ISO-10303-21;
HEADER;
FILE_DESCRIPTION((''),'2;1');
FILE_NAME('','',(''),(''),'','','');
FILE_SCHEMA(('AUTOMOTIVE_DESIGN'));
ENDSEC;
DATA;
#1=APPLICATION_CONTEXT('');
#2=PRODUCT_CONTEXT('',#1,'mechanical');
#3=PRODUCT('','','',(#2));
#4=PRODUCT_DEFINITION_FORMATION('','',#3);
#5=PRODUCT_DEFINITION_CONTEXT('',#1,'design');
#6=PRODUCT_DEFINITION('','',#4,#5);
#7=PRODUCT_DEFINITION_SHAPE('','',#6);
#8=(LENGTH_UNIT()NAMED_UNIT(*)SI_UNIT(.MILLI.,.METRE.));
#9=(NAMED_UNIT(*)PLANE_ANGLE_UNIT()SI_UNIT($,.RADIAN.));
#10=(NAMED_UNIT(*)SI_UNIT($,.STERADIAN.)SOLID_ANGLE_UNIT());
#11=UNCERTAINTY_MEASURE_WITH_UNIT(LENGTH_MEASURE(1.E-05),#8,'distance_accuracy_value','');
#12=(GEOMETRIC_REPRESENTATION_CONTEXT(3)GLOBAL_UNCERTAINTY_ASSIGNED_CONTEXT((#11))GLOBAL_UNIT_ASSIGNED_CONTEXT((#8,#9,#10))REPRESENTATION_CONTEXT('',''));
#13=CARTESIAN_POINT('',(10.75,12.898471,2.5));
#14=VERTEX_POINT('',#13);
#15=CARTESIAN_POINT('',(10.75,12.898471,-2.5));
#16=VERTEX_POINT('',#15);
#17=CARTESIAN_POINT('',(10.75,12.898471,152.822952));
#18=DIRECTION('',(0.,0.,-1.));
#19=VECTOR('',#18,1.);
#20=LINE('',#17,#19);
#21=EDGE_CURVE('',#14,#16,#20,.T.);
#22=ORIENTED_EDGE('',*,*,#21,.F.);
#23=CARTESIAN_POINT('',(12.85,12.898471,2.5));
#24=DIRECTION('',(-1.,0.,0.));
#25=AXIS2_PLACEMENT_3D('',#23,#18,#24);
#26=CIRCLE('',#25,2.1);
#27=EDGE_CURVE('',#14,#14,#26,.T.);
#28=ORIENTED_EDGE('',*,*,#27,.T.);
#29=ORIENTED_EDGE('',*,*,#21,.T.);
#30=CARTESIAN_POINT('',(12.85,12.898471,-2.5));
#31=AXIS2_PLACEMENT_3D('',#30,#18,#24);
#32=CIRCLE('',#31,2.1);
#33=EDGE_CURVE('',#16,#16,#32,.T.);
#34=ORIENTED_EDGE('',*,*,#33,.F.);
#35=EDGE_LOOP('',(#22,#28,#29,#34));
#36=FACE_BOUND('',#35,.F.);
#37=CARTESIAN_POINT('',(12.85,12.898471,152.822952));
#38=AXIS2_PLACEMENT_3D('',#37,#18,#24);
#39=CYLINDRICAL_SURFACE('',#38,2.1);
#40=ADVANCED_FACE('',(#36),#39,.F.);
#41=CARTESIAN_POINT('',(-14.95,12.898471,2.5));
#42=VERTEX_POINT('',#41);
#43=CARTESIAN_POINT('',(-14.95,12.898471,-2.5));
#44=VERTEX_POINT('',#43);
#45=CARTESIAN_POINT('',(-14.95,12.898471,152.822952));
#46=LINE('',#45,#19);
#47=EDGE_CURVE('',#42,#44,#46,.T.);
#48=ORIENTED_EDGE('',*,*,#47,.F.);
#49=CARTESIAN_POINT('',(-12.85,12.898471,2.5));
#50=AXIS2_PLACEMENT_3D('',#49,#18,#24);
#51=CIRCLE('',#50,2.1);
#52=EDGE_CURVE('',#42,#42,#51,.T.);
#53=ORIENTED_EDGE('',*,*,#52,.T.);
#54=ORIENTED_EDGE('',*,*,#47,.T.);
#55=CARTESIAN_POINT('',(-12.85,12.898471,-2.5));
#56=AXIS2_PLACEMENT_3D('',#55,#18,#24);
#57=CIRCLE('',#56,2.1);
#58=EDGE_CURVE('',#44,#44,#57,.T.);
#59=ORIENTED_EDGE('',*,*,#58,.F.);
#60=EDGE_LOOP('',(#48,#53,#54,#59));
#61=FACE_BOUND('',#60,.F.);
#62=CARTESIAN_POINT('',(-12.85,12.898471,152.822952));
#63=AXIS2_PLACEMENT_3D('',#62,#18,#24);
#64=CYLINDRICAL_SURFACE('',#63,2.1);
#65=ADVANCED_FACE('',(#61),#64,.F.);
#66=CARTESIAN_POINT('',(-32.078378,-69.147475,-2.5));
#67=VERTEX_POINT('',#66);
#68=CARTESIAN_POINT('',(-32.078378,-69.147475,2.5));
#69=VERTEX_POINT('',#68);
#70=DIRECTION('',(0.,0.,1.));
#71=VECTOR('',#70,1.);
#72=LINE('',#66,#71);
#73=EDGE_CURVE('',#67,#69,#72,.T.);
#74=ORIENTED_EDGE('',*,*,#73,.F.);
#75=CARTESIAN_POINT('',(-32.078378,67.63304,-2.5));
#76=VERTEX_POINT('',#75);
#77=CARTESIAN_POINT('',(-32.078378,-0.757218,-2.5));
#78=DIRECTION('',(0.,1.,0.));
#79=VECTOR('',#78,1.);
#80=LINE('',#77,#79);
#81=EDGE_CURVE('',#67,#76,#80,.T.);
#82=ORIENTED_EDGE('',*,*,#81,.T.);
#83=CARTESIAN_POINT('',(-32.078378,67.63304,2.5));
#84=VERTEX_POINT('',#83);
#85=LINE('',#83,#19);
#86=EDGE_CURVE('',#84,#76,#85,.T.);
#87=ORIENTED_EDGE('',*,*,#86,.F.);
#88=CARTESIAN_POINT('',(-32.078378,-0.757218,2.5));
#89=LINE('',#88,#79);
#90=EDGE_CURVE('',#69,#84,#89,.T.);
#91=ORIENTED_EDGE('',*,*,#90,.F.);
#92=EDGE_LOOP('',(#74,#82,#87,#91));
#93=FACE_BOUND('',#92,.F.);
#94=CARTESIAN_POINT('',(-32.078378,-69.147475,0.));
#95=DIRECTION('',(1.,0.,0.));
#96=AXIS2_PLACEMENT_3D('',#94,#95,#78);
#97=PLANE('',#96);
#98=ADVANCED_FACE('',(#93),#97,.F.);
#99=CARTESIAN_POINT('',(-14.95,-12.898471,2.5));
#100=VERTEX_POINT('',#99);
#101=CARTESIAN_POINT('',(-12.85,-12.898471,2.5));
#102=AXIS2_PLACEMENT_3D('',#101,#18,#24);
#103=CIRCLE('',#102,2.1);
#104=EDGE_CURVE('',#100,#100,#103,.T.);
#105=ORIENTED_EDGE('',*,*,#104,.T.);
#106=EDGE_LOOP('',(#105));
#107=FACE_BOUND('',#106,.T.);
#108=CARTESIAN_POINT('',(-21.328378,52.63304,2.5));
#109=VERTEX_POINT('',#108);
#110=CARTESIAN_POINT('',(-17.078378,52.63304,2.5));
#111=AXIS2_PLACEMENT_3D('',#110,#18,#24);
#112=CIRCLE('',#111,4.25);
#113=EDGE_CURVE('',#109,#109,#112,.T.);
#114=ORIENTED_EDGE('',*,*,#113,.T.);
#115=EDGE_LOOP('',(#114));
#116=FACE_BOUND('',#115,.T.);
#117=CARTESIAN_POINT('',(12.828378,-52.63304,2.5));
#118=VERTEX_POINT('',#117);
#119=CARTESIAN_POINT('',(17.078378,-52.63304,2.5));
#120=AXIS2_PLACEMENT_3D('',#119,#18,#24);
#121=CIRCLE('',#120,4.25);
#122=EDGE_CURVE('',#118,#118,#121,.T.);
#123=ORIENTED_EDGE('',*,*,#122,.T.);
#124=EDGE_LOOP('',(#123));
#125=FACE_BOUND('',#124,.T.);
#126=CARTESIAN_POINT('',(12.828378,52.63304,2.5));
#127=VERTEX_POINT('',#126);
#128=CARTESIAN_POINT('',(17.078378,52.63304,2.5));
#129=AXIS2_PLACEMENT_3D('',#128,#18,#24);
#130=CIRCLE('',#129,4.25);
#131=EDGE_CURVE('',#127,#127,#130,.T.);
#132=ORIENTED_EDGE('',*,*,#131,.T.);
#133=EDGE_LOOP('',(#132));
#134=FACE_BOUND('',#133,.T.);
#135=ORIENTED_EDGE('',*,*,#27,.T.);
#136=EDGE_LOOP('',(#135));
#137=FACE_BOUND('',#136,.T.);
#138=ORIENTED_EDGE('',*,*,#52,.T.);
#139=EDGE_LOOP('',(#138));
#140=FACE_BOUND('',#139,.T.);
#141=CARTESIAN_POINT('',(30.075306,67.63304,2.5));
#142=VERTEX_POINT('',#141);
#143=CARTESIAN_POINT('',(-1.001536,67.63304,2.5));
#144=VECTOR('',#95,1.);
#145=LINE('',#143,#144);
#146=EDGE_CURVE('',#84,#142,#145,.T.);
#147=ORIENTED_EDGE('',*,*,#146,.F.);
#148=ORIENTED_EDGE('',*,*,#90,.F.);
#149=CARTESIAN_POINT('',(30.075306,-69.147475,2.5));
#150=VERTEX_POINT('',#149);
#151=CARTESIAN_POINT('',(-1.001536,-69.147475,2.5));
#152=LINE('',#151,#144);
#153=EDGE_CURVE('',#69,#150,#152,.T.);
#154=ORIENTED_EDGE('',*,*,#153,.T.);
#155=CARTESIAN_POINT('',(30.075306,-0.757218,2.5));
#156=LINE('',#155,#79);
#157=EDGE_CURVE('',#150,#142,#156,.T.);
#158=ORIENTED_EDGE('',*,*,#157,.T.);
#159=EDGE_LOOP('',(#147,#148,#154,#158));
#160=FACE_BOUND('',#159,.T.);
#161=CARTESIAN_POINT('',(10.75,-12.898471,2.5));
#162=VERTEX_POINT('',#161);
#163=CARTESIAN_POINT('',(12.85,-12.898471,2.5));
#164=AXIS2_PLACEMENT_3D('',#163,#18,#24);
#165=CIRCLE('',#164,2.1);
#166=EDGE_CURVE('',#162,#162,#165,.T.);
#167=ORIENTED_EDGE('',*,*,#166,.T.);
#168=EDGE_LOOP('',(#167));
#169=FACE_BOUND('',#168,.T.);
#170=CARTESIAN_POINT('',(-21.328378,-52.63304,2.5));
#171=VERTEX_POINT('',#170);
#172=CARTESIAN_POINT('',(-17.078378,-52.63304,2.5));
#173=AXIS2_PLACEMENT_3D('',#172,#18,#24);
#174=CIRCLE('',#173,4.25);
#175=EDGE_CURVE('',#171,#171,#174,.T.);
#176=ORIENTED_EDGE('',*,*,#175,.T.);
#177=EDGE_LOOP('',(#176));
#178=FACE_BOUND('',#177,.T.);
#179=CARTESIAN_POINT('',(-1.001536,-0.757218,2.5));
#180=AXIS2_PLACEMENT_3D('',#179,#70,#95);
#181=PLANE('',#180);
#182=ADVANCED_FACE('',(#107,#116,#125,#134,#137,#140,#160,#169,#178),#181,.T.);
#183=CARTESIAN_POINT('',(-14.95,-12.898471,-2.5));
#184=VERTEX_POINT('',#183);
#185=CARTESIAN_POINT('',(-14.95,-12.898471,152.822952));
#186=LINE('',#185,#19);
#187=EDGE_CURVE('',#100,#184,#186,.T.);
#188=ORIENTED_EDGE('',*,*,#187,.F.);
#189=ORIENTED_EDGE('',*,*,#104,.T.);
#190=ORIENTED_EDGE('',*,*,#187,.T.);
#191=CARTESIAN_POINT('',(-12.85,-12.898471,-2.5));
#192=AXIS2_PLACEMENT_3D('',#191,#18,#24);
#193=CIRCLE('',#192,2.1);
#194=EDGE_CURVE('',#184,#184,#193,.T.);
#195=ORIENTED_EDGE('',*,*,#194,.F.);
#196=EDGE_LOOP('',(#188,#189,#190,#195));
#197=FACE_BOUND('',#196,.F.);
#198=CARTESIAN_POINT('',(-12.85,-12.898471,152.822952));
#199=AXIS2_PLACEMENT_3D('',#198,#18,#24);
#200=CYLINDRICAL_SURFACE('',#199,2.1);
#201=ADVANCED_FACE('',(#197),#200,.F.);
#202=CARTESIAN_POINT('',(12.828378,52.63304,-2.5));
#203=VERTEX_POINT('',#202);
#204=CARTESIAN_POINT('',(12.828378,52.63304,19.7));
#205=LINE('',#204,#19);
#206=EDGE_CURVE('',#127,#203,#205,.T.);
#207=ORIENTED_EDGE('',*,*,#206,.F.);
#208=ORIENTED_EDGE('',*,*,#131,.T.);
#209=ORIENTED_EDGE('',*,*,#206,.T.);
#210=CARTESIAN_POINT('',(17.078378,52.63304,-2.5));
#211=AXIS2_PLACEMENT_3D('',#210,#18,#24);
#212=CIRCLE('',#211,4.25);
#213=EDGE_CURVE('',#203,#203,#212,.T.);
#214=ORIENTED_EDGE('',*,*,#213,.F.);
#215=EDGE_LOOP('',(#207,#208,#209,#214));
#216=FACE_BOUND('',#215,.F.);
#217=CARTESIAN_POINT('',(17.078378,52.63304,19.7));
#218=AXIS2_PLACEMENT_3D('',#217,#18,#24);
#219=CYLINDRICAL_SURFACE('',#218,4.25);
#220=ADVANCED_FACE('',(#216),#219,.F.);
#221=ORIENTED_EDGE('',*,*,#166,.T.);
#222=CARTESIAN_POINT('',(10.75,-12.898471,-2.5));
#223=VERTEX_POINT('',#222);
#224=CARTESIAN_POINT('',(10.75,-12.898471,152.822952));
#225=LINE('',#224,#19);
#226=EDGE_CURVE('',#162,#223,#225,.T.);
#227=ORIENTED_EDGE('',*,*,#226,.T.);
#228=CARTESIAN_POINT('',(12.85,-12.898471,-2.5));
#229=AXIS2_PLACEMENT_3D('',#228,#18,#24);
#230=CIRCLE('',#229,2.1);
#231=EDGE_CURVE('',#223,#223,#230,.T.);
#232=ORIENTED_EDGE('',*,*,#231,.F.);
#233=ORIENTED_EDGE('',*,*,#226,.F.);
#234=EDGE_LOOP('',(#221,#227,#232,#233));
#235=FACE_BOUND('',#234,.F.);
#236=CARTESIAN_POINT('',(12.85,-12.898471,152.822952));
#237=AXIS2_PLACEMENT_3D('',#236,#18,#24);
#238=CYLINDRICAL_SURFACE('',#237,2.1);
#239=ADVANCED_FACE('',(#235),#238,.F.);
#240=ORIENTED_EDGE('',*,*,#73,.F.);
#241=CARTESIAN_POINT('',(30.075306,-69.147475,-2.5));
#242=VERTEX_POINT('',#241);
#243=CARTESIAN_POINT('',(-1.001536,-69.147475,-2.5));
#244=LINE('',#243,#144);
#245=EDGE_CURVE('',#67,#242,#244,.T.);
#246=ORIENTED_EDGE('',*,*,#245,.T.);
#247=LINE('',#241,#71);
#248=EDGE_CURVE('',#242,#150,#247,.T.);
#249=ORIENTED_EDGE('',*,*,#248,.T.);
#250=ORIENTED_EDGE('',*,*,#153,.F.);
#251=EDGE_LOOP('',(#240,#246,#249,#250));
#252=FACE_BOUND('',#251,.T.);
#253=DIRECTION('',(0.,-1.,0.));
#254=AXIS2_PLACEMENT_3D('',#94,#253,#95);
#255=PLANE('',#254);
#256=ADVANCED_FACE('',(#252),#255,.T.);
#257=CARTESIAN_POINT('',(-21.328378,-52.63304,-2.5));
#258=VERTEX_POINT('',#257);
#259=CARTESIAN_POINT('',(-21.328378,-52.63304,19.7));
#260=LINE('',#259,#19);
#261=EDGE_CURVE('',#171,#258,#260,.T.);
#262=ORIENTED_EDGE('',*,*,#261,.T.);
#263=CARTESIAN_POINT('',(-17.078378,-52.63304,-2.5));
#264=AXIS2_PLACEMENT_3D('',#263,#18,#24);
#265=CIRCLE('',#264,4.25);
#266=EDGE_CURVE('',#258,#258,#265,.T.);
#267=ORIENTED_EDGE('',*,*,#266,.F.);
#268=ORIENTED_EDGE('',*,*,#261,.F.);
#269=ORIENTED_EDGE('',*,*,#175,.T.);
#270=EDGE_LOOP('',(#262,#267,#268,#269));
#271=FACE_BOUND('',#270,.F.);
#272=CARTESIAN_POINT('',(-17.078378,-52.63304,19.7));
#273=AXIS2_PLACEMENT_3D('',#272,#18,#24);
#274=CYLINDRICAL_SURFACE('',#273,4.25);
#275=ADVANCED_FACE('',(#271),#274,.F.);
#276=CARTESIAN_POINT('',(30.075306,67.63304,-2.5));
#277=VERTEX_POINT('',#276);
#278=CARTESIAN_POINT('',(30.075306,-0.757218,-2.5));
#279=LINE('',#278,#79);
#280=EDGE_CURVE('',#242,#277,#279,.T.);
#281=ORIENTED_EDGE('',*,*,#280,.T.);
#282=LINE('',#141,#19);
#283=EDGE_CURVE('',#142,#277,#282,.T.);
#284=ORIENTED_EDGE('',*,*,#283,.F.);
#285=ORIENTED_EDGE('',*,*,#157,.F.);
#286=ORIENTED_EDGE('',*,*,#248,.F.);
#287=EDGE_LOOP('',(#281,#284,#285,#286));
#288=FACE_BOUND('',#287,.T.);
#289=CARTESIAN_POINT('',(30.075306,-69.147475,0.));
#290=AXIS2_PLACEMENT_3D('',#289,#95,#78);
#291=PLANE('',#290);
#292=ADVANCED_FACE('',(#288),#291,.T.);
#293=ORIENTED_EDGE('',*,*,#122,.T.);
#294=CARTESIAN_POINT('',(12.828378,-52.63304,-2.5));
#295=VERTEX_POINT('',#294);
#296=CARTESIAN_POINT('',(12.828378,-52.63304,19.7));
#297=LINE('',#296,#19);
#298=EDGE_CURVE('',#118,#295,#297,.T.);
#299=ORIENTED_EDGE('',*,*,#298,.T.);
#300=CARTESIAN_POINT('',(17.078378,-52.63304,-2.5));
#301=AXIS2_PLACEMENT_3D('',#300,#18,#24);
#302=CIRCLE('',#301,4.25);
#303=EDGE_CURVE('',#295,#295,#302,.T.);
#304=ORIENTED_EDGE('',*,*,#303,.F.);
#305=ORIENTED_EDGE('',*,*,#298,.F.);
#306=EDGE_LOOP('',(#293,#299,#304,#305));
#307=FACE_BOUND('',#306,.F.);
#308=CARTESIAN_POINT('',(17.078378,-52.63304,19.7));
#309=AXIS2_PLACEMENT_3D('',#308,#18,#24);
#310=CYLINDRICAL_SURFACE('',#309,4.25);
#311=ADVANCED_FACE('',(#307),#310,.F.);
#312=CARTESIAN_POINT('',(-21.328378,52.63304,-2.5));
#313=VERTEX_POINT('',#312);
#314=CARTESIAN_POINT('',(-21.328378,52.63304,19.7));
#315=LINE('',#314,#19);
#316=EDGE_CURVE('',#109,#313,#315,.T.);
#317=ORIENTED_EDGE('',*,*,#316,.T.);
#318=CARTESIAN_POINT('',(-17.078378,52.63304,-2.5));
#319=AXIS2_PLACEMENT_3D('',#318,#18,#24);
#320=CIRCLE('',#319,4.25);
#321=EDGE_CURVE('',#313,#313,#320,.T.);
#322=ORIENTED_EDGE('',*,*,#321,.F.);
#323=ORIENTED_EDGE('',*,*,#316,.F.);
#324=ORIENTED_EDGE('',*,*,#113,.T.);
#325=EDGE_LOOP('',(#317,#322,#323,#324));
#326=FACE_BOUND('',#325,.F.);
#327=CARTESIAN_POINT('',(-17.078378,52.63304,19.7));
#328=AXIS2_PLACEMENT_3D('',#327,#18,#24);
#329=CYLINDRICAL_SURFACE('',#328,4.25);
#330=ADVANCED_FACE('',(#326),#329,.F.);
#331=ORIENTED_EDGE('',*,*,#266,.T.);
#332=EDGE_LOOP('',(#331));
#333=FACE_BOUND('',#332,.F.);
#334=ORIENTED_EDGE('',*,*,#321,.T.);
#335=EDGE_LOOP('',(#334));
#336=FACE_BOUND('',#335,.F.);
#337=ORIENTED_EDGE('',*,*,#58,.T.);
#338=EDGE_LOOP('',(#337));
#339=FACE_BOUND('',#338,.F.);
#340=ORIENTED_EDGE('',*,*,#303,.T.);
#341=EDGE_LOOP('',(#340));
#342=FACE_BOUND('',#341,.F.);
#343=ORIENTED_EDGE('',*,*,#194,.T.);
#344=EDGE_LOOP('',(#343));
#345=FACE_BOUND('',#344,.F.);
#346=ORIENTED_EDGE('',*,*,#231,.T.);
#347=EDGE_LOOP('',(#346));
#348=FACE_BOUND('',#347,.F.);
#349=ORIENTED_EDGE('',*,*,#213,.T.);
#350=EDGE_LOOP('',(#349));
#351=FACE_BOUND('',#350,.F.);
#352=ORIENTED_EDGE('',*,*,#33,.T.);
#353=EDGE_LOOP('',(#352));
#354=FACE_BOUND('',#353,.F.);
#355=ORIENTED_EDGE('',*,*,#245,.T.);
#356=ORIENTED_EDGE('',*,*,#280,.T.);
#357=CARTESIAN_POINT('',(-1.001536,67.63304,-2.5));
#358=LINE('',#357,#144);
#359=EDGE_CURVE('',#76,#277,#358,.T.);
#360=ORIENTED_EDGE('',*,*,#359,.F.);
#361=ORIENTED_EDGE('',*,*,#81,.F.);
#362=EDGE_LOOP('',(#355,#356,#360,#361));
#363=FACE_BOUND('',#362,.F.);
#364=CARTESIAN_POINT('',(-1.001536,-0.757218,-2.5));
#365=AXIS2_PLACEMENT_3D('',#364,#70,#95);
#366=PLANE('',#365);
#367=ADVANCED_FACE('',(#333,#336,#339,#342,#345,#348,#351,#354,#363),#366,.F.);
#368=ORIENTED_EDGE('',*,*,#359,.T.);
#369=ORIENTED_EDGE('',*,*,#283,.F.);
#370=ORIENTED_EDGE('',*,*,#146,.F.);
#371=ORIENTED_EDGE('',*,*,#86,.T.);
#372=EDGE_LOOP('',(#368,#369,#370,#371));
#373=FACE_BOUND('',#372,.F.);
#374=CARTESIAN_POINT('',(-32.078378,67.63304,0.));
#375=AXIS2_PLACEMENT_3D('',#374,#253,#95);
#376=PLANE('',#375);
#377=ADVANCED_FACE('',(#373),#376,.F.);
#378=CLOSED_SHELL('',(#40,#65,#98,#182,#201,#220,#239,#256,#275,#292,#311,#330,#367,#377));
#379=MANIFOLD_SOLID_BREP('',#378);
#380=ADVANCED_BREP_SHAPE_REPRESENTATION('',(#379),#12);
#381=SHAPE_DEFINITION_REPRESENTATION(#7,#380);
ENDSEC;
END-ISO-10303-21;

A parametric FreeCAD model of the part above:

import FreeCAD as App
import Part
import Sketcher

doc = App.newDocument("Part")
params = doc.addObject("Spreadsheet::Sheet", "Params")
for row, (alias, value) in enumerate([
    ("pad1_length", "5 mm"),
    ("sketch2_diameter", "4.2 mm"),
    ("hole_diameter", "4.2 mm"),
    ("sketch3_diameter", "8.5 mm"),
    ("hole2_diameter", "8.5 mm"),
    ("hole2_depth", "17.2 mm"),
], start=1):
    params.set(f"A{row}", alias)
    params.set(f"B{row}", "=" + value)
    params.setAlias(f"B{row}", alias)

body = doc.addObject("PartDesign::Body", "Body")

# Sketch on XY plane
sketch1 = body.newObject("Sketcher::SketchObject", "Sketch")
sketch1.AttachmentSupport = (doc.getObject("XY_Plane"), [""])
sketch1.MapMode = "FlatFace"
sketch1.addGeometry(Part.LineSegment(App.Vector(-32, 68, 0), App.Vector(-32, -69, 0)), False)
sketch1.addGeometry(Part.LineSegment(App.Vector(-32, -69, 0), App.Vector(30, -69, 0)), False)
sketch1.addGeometry(Part.LineSegment(App.Vector(30, -69, 0), App.Vector(30, 68, 0)), False)
sketch1.addGeometry(Part.LineSegment(App.Vector(30, 68, 0), App.Vector(-32, 68, 0)), False)
sketch1.addConstraint(Sketcher.Constraint("Coincident", 0, 2, 1, 1))
sketch1.addConstraint(Sketcher.Constraint("Coincident", 1, 2, 2, 1))
sketch1.addConstraint(Sketcher.Constraint("Coincident", 2, 2, 3, 1))
sketch1.addConstraint(Sketcher.Constraint("Coincident", 3, 2, 0, 1))
sketch1.addConstraint(Sketcher.Constraint("Vertical", 0))
sketch1.addConstraint(Sketcher.Constraint("Horizontal", 1))
sketch1.addConstraint(Sketcher.Constraint("Vertical", 2))
sketch1.addConstraint(Sketcher.Constraint("Horizontal", 3))
sketch1.addConstraint(Sketcher.Constraint("DistanceX", 1, 1, 1, 2, 62.153684))
sketch1.addConstraint(Sketcher.Constraint("DistanceY", 0, 2, 0, 1, 136.780515))
sketch1.addConstraint(Sketcher.Constraint("DistanceY", -1, 1, 2, 2, 67.63304))
sketch1.addConstraint(Sketcher.Constraint("DistanceX", 0, 2, -1, 1, 32.078378))
pad1 = body.newObject("PartDesign::Pad", "Pad")
pad1.Profile = sketch1
pad1.setExpression("Length", "Params.pad1_length")
pad1.Midplane = True

# Sketch on XY plane
sketch2 = body.newObject("Sketcher::SketchObject", "Sketch001")
sketch2.AttachmentSupport = (doc.getObject("XY_Plane"), [""])
sketch2.MapMode = "FlatFace"
sketch2.AttachmentOffset = App.Placement(App.Vector(0, 0, 2.5), App.Rotation())
sketch2.addGeometry(Part.Circle(App.Vector(-12.8, -12.9, 0), App.Vector(0, 0, 1), 2.1), False)
sketch2.addGeometry(Part.Circle(App.Vector(-12.8, 12.9, 0), App.Vector(0, 0, 1), 2.1), False)
sketch2.addGeometry(Part.Circle(App.Vector(12.8, -12.9, 0), App.Vector(0, 0, 1), 2.1), False)
sketch2.addGeometry(Part.Circle(App.Vector(12.8, 12.9, 0), App.Vector(0, 0, 1), 2.1), False)
sketch2.addConstraint(Sketcher.Constraint("Equal", 0, 1))
sketch2.addConstraint(Sketcher.Constraint("Equal", 1, 2))
sketch2.addConstraint(Sketcher.Constraint("Equal", 2, 3))
sketch2.addConstraint(Sketcher.Constraint("Symmetric", 1, 3, 2, 3, -1, 1))
sketch2.addConstraint(Sketcher.Constraint("Symmetric", 0, 3, 3, 3, -1, 1))
sketch2.addConstraint(Sketcher.Constraint("Symmetric", 0, 3, 2, 3, -2))
sketch2.addConstraint(Sketcher.Constraint("Diameter", 0, 4.2))
sketch2.addConstraint(Sketcher.Constraint("DistanceX", 0, 3, 2, 3, 25.7))
sketch2.addConstraint(Sketcher.Constraint("DistanceY", 0, 3, -1, 1, 12.898471))
sketch2.setExpression("Constraints[6]", "Params.sketch2_diameter")
doc.recompute()
hole = body.newObject("PartDesign::Hole", "Hole")
hole.Profile = sketch2
hole.ThreadType = "None"
hole.setExpression("Diameter", "Params.hole_diameter")
hole.DepthType = "ThroughAll"

# Sketch on XY plane
sketch3 = body.newObject("Sketcher::SketchObject", "Sketch002")
sketch3.AttachmentSupport = (doc.getObject("XY_Plane"), [""])
sketch3.MapMode = "FlatFace"
sketch3.AttachmentOffset = App.Placement(App.Vector(0, 0, 2.5), App.Rotation())
sketch3.addGeometry(Part.Circle(App.Vector(-17.1, 52.6, 0), App.Vector(0, 0, 1), 4.2), False)
sketch3.addGeometry(Part.Circle(App.Vector(17.1, 52.6, 0), App.Vector(0, 0, 1), 4.2), False)
sketch3.addGeometry(Part.Circle(App.Vector(17.1, -52.6, 0), App.Vector(0, 0, 1), 4.2), False)
sketch3.addGeometry(Part.Circle(App.Vector(-17.1, -52.6, 0), App.Vector(0, 0, 1), 4.2), False)
sketch3.addConstraint(Sketcher.Constraint("Equal", 0, 1))
sketch3.addConstraint(Sketcher.Constraint("Equal", 1, 2))
sketch3.addConstraint(Sketcher.Constraint("Equal", 2, 3))
sketch3.addConstraint(Sketcher.Constraint("Symmetric", 0, 3, 2, 3, -1, 1))
sketch3.addConstraint(Sketcher.Constraint("Symmetric", 1, 3, 3, 3, -1, 1))
sketch3.addConstraint(Sketcher.Constraint("Symmetric", 0, 3, 1, 3, -2))
sketch3.addConstraint(Sketcher.Constraint("Diameter", 0, 8.5))
sketch3.addConstraint(Sketcher.Constraint("DistanceY", -1, 1, 0, 3, 52.63304))
sketch3.addConstraint(Sketcher.Constraint("DistanceX", 0, 3, -1, 1, 17.078378))
sketch3.setExpression("Constraints[6]", "Params.sketch3_diameter")
doc.recompute()
hole2 = body.newObject("PartDesign::Hole", "Hole001")
hole2.Profile = sketch3
hole2.ThreadType = "None"
hole2.setExpression("Diameter", "Params.hole2_diameter")
hole2.DepthType = "Dimension"
hole2.setExpression("Depth", "Params.hole2_depth")
hole2.DrillPoint = "Angled"
hole2.DrillPointAngle = 118

doc.recompute()
